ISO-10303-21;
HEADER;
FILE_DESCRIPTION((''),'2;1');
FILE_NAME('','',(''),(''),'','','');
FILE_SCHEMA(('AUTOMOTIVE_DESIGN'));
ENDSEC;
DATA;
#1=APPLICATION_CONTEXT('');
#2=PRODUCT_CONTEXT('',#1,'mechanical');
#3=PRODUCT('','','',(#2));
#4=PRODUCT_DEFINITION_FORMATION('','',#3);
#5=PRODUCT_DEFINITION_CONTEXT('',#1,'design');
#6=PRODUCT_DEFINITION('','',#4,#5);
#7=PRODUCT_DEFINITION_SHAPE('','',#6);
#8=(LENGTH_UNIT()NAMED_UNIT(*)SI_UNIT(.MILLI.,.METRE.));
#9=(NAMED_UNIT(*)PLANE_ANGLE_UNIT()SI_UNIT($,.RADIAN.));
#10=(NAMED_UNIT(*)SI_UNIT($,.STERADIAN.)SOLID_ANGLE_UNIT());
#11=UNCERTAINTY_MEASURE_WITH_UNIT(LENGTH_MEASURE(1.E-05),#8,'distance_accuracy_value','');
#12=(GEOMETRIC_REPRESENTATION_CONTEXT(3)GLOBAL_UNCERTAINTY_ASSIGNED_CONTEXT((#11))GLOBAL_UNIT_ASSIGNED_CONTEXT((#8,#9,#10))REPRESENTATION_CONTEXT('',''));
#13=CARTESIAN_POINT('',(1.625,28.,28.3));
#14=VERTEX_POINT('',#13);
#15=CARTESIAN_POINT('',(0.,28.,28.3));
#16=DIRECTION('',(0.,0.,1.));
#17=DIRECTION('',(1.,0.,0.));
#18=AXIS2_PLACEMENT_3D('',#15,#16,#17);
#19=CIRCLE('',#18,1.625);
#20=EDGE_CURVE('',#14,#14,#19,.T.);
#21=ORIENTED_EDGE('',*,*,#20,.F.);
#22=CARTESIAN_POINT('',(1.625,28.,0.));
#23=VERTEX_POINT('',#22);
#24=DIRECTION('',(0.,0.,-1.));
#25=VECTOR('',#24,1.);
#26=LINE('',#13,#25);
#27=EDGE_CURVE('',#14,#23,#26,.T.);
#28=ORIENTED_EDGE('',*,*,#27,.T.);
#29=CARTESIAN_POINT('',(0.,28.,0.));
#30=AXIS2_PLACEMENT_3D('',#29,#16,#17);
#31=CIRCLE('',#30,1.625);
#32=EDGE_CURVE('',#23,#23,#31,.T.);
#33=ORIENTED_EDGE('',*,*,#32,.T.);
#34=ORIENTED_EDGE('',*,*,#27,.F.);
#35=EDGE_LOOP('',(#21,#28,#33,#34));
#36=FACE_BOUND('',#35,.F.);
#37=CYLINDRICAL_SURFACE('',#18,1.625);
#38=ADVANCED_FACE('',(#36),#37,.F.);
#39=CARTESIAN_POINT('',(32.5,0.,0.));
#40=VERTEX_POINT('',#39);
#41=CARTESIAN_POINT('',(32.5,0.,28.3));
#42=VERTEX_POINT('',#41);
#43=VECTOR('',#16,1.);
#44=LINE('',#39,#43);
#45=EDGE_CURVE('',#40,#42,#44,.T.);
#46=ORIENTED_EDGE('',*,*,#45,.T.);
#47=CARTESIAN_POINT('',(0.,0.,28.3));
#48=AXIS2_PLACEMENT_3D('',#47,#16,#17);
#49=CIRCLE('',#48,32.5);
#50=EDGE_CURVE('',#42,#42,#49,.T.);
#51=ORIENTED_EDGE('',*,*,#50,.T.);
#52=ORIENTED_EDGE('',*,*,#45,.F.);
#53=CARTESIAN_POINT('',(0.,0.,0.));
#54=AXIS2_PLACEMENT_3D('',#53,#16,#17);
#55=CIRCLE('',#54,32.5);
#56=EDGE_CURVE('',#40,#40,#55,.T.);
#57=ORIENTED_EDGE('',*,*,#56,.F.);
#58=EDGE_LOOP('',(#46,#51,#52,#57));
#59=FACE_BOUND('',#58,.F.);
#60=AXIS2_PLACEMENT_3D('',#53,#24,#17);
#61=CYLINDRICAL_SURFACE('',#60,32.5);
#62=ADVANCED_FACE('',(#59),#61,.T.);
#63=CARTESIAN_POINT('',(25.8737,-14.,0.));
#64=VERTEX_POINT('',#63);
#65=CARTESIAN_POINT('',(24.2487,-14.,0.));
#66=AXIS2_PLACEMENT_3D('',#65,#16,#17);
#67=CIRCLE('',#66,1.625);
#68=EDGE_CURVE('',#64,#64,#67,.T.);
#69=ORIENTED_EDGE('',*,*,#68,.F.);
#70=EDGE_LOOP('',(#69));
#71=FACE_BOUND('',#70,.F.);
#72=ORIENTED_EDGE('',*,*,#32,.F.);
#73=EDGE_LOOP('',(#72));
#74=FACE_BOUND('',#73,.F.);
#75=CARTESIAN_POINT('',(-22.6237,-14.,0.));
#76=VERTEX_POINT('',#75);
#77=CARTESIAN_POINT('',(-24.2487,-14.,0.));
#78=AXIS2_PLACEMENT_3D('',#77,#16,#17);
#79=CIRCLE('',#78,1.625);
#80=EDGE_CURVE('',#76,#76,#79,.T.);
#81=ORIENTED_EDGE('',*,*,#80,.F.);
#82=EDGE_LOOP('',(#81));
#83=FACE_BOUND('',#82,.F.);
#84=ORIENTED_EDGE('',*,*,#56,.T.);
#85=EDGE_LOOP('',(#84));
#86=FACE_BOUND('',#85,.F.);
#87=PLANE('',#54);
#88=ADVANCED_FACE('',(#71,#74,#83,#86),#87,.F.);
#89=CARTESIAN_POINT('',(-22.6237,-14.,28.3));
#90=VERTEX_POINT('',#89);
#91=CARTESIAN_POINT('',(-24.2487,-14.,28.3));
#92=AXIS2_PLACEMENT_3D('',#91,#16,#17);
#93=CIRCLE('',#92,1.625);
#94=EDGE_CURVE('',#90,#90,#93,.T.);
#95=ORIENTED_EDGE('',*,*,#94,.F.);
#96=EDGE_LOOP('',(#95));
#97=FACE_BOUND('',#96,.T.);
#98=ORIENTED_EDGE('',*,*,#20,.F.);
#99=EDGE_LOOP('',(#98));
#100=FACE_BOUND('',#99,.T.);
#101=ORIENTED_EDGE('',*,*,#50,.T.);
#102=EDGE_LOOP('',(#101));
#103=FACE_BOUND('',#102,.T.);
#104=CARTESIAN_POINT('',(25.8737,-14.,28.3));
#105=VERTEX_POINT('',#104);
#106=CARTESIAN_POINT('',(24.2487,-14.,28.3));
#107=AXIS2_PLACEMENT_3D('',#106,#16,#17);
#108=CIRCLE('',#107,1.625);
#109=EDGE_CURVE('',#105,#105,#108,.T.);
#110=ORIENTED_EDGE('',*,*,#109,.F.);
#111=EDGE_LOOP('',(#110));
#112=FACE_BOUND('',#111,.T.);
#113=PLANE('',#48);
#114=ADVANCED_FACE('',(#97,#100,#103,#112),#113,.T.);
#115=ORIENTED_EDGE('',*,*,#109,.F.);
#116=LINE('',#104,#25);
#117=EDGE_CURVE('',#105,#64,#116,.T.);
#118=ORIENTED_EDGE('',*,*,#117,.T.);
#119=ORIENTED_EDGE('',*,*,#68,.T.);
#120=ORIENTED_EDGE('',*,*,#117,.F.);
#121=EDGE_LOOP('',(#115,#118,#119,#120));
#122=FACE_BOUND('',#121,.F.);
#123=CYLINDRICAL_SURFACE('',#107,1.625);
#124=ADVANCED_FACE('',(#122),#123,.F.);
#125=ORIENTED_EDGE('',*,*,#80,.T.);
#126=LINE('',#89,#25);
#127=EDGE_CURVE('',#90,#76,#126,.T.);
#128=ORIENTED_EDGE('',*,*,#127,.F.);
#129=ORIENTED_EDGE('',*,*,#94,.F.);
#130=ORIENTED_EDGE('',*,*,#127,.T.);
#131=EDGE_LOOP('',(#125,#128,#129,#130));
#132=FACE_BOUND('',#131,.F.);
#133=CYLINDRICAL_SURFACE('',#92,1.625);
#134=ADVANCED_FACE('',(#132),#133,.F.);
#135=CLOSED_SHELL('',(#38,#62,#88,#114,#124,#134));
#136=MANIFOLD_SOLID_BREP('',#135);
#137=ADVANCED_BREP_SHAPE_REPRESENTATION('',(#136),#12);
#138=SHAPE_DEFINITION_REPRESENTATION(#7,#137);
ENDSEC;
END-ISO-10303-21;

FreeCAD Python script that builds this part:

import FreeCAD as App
import Part
import Sketcher

doc = App.newDocument("Part")
body = doc.addObject("PartDesign::Body", "Body")

# Sketch on XY plane
sketch1 = doc.addObject("Sketcher::SketchObject", "Sketch")
body.addObject(sketch1)
sketch1.AttachmentSupport = (doc.XY_Plane, [""])
sketch1.MapMode = "FlatFace"
sketch1.addGeometry(Part.Circle(App.Vector(0, 0, 0), App.Vector(0, 0, 1), 32.5), False)
sketch1.addConstraint(Sketcher.Constraint("Coincident", 0, 3, -1, 1))
sketch1.addConstraint(Sketcher.Constraint("Diameter", 0, 65.0))
pad1 = doc.addObject("PartDesign::Pad", "Pad")
body.addObject(pad1)
pad1.Profile = sketch1
pad1.Length = 28.3

# Sketch on XY plane
sketch2 = doc.addObject("Sketcher::SketchObject", "Sketch001")
body.addObject(sketch2)
sketch2.AttachmentSupport = (doc.XY_Plane, [""])
sketch2.MapMode = "FlatFace"
sketch2.AttachmentOffset = App.Placement(App.Vector(0, 0, 28.3), App.Rotation())
sketch2.addGeometry(Part.Circle(App.Vector(0, 28, 0), App.Vector(0, 0, 1), 1.625), False)
sketch2.addGeometry(Part.Circle(App.Vector(24.2487, -14, 0), App.Vector(0, 0, 1), 1.625), False)
sketch2.addGeometry(Part.Circle(App.Vector(-24.2487, -14, 0), App.Vector(0, 0, 1), 1.625), False)
sketch2.addConstraint(Sketcher.Constraint("Equal", 0, 1))
sketch2.addConstraint(Sketcher.Constraint("Equal", 1, 2))
sketch2.addConstraint(Sketcher.Constraint("Symmetric", 1, 3, 2, 3, -2))
sketch2.addConstraint(Sketcher.Constraint("PointOnObject", 0, 3, -2))
sketch2.addConstraint(Sketcher.Constraint("Diameter", 0, 3.25))
sketch2.addConstraint(Sketcher.Constraint("DistanceY", -1, 1, 0, 3, 28.0))
sketch2.addConstraint(Sketcher.Constraint("DistanceY", 1, 3, -1, 1, 14.0))
sketch2.addConstraint(Sketcher.Constraint("DistanceX", -1, 1, 1, 3, 24.2487))
pocket1 = doc.addObject("PartDesign::Pocket", "Pocket")
body.addObject(pocket1)
pocket1.Profile = sketch2
pocket1.Length = 100

doc.recompute()
